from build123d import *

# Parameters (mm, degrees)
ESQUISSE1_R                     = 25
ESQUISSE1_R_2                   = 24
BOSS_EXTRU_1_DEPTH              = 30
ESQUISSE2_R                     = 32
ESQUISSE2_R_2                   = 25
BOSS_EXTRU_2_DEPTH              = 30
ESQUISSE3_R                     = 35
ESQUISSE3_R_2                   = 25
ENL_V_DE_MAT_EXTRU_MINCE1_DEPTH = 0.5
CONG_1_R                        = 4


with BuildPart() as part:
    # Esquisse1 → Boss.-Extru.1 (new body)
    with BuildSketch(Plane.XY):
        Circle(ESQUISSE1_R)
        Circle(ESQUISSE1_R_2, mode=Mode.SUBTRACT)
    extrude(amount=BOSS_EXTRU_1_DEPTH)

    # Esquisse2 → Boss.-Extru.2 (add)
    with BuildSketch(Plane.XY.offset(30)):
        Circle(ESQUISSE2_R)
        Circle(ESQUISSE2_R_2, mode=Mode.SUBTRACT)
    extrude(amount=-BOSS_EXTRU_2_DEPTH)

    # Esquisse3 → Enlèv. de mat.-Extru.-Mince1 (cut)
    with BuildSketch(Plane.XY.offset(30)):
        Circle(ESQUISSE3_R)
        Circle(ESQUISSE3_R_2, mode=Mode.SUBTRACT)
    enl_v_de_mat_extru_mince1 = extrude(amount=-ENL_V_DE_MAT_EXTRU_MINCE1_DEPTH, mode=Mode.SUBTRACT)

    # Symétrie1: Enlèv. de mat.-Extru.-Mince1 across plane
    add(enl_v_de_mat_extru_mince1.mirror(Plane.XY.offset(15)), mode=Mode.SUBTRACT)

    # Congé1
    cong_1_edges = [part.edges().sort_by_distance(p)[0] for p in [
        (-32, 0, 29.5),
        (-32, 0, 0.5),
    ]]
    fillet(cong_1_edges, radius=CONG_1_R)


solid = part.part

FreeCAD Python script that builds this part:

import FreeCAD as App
import Part
import Sketcher

V = App.Vector


def edges_at(feature, points):
    """Names of the edges that pass closest to the given points."""
    edges = feature.Shape.Edges
    near = lambda p: min(range(len(edges)), key=lambda i: edges[i].distToShape(Part.Vertex(*p))[0])
    return sorted({f"Edge{near(p) + 1}" for p in points})

doc = App.newDocument("Part")
body = doc.addObject("PartDesign::Body", "Body")

# Sketch on XY plane
sketch1 = doc.addObject("Sketcher::SketchObject", "Sketch")
body.addObject(sketch1)
sketch1.AttachmentSupport = (doc.XY_Plane, [""])
sketch1.MapMode = "FlatFace"
sketch1.addGeometry(Part.Circle(V(0, 0, 0), V(0, 0, 1), 25), False)
sketch1.addGeometry(Part.Circle(V(0, 0, 0), V(0, 0, 1), 24), False)
sketch1.addConstraint(Sketcher.Constraint("Coincident", 0, 3, -1, 1))
sketch1.addConstraint(Sketcher.Constraint("Coincident", 1, 3, -1, 1))
sketch1.addConstraint(Sketcher.Constraint("Diameter", 0, 50.0))
sketch1.addConstraint(Sketcher.Constraint("Diameter", 1, 48.0))
pad1 = doc.addObject("PartDesign::Pad", "Pad")
body.addObject(pad1)
pad1.Profile = sketch1
pad1.Length = 30

# Sketch on XY plane
sketch2 = doc.addObject("Sketcher::SketchObject", "Sketch001")
body.addObject(sketch2)
sketch2.AttachmentSupport = (doc.XY_Plane, [""])
sketch2.MapMode = "FlatFace"
sketch2.AttachmentOffset = App.Placement(V(0, 0, 30), App.Rotation())
sketch2.addGeometry(Part.Circle(V(0, 0, 0), V(0, 0, 1), 32), False)
sketch2.addGeometry(Part.Circle(V(0, 0, 0), V(0, 0, 1), 25), False)
sketch2.addConstraint(Sketcher.Constraint("Coincident", 0, 3, -1, 1))
sketch2.addConstraint(Sketcher.Constraint("Coincident", 1, 3, -1, 1))
sketch2.addConstraint(Sketcher.Constraint("Diameter", 0, 64.0))
sketch2.addConstraint(Sketcher.Constraint("Diameter", 1, 50.0))
pad2 = doc.addObject("PartDesign::Pad", "Pad001")
body.addObject(pad2)
pad2.Profile = sketch2
pad2.Length = 30
pad2.Reversed = True

# Sketch on XY plane
sketch3 = doc.addObject("Sketcher::SketchObject", "Sketch002")
body.addObject(sketch3)
sketch3.AttachmentSupport = (doc.XY_Plane, [""])
sketch3.MapMode = "FlatFace"
sketch3.AttachmentOffset = App.Placement(V(0, 0, 30), App.Rotation())
sketch3.addGeometry(Part.Circle(V(0, 0, 0), V(0, 0, 1), 35), False)
sketch3.addGeometry(Part.Circle(V(0, 0, 0), V(0, 0, 1), 25), False)
sketch3.addConstraint(Sketcher.Constraint("Coincident", 0, 3, -1, 1))
sketch3.addConstraint(Sketcher.Constraint("Coincident", 1, 3, -1, 1))
sketch3.addConstraint(Sketcher.Constraint("Diameter", 0, 70.0))
sketch3.addConstraint(Sketcher.Constraint("Diameter", 1, 50.0))
pocket1 = doc.addObject("PartDesign::Pocket", "Pocket")
body.addObject(pocket1)
pocket1.Profile = sketch3
pocket1.Length = 0.5
doc.recompute()

datumplane = doc.addObject("PartDesign::Plane", "DatumPlane")
body.addObject(datumplane)
datumplane.AttachmentSupport = (doc.XY_Plane, [""])
datumplane.MapMode = "FlatFace"
datumplane.AttachmentOffset = App.Placement(V(0, 0, 15), App.Rotation())
mirrored = doc.addObject("PartDesign::Mirrored", "Mirrored")
body.addObject(mirrored)
mirrored.Originals = [pocket1]
mirrored.MirrorPlane = (datumplane, [""])
body.Tip = mirrored
doc.recompute()

fillet = doc.addObject("PartDesign::Fillet", "Fillet")
body.addObject(fillet)
fillet.Base = (mirrored, edges_at(mirrored, [(-32, 0, 29.5), (-32, 0, 0.5)]))
fillet.Radius = 4

doc.recompute()
